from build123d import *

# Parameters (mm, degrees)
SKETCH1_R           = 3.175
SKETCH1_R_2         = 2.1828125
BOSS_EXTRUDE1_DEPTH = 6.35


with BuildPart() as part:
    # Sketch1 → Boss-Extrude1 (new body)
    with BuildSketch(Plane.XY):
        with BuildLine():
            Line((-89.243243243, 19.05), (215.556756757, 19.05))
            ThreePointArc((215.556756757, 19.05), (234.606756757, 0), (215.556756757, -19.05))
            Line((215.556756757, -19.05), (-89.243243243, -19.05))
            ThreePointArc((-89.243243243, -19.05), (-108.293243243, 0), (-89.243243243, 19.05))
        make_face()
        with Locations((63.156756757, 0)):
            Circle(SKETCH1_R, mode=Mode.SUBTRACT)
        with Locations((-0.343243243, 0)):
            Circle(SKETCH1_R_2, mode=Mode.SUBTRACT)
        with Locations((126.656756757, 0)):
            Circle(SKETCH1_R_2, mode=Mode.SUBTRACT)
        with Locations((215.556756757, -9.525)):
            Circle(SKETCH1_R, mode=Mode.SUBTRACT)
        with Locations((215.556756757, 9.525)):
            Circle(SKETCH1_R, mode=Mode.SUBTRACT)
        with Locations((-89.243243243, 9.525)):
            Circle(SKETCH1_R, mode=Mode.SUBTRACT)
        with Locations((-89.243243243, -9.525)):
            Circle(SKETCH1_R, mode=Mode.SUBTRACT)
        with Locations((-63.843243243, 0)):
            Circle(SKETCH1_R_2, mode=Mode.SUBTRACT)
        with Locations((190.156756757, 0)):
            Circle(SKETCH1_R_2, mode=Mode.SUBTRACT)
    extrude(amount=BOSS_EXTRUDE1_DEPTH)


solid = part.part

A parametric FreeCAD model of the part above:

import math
import FreeCAD as App
import Part
import Sketcher

V = App.Vector
Q = App.Units.Quantity

doc = App.newDocument("Part")
params = doc.addObject("Spreadsheet::Sheet", "Params")
for row, (alias, value) in enumerate([
    ("sketch1_diameter", "0.25 in"),
    ("sketch1_width", "12 in"),
    ("sketch1_radius", "0.75 in"),
    ("sketch1_diameter2", "0.171875 in"),
    ("pad1_length", "0.25 in"),
], start=1):
    params.set(f"A{row}", alias)
    params.set(f"B{row}", "=" + value)
    params.setAlias(f"B{row}", alias)

body = doc.addObject("PartDesign::Body", "Body")

sketch1 = body.newObject("Sketcher::SketchObject", "Sketch")
sketch1.AttachmentSupport = (doc.getObject("XY_Plane"), [""])
sketch1.MapMode = "FlatFace"
sketch1.addGeometry([
    Part.LineSegment(V(215.556757, 19.05, 0), V(-89.243243, 19.05, 0)),
    Part.ArcOfCircle(Part.Circle(V(-89.243243, 0, 0), V(0, 0, 1), 19.05), math.radians(90), math.radians(270)),
    Part.LineSegment(V(-89.243243, -19.05, 0), V(215.556757, -19.05, 0)),
    Part.ArcOfCircle(Part.Circle(V(215.556757, 0, 0), V(0, 0, 1), 19.05), math.radians(-90), math.radians(90)),
    Part.Circle(V(215.556757, -9.525, 0), V(0, 0, 1), 3.175),
    Part.Circle(V(-89.243243, -9.525, 0), V(0, 0, 1), 3.175),
    Part.Circle(V(190.156757, 0, 0), V(0, 0, 1), 2.182812),
    Part.Circle(V(126.656757, 0, 0), V(0, 0, 1), 2.182812),
    Part.Circle(V(215.556757, 9.525, 0), V(0, 0, 1), 3.175),
    Part.Circle(V(63.156757, 0, 0), V(0, 0, 1), 3.175),
    Part.Circle(V(-0.343243, 0, 0), V(0, 0, 1), 2.182812),
    Part.Circle(V(-63.843243, 0, 0), V(0, 0, 1), 2.182812),
    Part.Circle(V(-89.243243, 9.525, 0), V(0, 0, 1), 3.175),
], False)
sketch1.addConstraint([
    Sketcher.Constraint("Tangent", 0, 2, 1, 1),
    Sketcher.Constraint("Tangent", 1, 2, 2, 1),
    Sketcher.Constraint("Tangent", 2, 2, 3, 1),
    Sketcher.Constraint("Tangent", 3, 2, 0, 1),
    Sketcher.Constraint("Horizontal", 0),
    Sketcher.Constraint("Horizontal", 2),
    Sketcher.Constraint("Equal", 4, 5),
    Sketcher.Constraint("Equal", 6, 7),
    Sketcher.Constraint("Equal", 5, 8),
    Sketcher.Constraint("Equal", 8, 9),
    Sketcher.Constraint("Equal", 7, 10),
    Sketcher.Constraint("Equal", 10, 11),
    Sketcher.Constraint("Equal", 9, 12),
    Sketcher.Constraint("Symmetric", 4, 3, 8, 3, -1),
    Sketcher.Constraint("Symmetric", 5, 3, 12, 3, -1),
    Sketcher.Constraint("PointOnObject", 1, 3, -1),
    Sketcher.Constraint("PointOnObject", 6, 3, -1),
    Sketcher.Constraint("PointOnObject", 7, 3, -1),
    Sketcher.Constraint("PointOnObject", 9, 3, -1),
    Sketcher.Constraint("PointOnObject", 10, 3, -1),
    Sketcher.Constraint("PointOnObject", 11, 3, -1),
    Sketcher.Constraint("Horizontal", 4, 3, 5, 3),
    Sketcher.Constraint("Vertical", 3, 3, 4, 3),
    Sketcher.Constraint("Vertical", 1, 3, 5, 3),
    Sketcher.Constraint("Diameter", 4, Q("0.25 in")),
    Sketcher.Constraint("DistanceX", 0, 2, 0, 1, Q("12 in")),
    Sketcher.Constraint("Radius", 1, Q("0.75 in")),
    Sketcher.Constraint("Diameter", 6, Q("0.171875 in")),
    Sketcher.Constraint("DistanceX", 6, 3, 3, 3, Q("1 in")),
    Sketcher.Constraint("DistanceX", 9, 3, 6, 3, Q("5 in")),
    Sketcher.Constraint("DistanceX", 10, 3, 7, 3, Q("5 in")),
    Sketcher.Constraint("DistanceX", 1, 3, 11, 3, Q("1 in")),
    Sketcher.Constraint("DistanceX", 7, 3, 6, 3, Q("2.5 in")),
    Sketcher.Constraint("DistanceY", 4, 3, 8, 3, Q("0.75 in")),
    Sketcher.Constraint("DistanceX", 1, 3, -1, 1, Q("89.243243 mm")),
])
sketch1.setExpression("Constraints[24]", "Params.sketch1_diameter")
sketch1.setExpression("Constraints[25]", "Params.sketch1_width")
sketch1.setExpression("Constraints[26]", "Params.sketch1_radius")
sketch1.setExpression("Constraints[27]", "Params.sketch1_diameter2")
pad1 = body.newObject("PartDesign::Pad", "Pad")
pad1.Profile = sketch1
pad1.setExpression("Length", "Params.pad1_length")

doc.recompute()
